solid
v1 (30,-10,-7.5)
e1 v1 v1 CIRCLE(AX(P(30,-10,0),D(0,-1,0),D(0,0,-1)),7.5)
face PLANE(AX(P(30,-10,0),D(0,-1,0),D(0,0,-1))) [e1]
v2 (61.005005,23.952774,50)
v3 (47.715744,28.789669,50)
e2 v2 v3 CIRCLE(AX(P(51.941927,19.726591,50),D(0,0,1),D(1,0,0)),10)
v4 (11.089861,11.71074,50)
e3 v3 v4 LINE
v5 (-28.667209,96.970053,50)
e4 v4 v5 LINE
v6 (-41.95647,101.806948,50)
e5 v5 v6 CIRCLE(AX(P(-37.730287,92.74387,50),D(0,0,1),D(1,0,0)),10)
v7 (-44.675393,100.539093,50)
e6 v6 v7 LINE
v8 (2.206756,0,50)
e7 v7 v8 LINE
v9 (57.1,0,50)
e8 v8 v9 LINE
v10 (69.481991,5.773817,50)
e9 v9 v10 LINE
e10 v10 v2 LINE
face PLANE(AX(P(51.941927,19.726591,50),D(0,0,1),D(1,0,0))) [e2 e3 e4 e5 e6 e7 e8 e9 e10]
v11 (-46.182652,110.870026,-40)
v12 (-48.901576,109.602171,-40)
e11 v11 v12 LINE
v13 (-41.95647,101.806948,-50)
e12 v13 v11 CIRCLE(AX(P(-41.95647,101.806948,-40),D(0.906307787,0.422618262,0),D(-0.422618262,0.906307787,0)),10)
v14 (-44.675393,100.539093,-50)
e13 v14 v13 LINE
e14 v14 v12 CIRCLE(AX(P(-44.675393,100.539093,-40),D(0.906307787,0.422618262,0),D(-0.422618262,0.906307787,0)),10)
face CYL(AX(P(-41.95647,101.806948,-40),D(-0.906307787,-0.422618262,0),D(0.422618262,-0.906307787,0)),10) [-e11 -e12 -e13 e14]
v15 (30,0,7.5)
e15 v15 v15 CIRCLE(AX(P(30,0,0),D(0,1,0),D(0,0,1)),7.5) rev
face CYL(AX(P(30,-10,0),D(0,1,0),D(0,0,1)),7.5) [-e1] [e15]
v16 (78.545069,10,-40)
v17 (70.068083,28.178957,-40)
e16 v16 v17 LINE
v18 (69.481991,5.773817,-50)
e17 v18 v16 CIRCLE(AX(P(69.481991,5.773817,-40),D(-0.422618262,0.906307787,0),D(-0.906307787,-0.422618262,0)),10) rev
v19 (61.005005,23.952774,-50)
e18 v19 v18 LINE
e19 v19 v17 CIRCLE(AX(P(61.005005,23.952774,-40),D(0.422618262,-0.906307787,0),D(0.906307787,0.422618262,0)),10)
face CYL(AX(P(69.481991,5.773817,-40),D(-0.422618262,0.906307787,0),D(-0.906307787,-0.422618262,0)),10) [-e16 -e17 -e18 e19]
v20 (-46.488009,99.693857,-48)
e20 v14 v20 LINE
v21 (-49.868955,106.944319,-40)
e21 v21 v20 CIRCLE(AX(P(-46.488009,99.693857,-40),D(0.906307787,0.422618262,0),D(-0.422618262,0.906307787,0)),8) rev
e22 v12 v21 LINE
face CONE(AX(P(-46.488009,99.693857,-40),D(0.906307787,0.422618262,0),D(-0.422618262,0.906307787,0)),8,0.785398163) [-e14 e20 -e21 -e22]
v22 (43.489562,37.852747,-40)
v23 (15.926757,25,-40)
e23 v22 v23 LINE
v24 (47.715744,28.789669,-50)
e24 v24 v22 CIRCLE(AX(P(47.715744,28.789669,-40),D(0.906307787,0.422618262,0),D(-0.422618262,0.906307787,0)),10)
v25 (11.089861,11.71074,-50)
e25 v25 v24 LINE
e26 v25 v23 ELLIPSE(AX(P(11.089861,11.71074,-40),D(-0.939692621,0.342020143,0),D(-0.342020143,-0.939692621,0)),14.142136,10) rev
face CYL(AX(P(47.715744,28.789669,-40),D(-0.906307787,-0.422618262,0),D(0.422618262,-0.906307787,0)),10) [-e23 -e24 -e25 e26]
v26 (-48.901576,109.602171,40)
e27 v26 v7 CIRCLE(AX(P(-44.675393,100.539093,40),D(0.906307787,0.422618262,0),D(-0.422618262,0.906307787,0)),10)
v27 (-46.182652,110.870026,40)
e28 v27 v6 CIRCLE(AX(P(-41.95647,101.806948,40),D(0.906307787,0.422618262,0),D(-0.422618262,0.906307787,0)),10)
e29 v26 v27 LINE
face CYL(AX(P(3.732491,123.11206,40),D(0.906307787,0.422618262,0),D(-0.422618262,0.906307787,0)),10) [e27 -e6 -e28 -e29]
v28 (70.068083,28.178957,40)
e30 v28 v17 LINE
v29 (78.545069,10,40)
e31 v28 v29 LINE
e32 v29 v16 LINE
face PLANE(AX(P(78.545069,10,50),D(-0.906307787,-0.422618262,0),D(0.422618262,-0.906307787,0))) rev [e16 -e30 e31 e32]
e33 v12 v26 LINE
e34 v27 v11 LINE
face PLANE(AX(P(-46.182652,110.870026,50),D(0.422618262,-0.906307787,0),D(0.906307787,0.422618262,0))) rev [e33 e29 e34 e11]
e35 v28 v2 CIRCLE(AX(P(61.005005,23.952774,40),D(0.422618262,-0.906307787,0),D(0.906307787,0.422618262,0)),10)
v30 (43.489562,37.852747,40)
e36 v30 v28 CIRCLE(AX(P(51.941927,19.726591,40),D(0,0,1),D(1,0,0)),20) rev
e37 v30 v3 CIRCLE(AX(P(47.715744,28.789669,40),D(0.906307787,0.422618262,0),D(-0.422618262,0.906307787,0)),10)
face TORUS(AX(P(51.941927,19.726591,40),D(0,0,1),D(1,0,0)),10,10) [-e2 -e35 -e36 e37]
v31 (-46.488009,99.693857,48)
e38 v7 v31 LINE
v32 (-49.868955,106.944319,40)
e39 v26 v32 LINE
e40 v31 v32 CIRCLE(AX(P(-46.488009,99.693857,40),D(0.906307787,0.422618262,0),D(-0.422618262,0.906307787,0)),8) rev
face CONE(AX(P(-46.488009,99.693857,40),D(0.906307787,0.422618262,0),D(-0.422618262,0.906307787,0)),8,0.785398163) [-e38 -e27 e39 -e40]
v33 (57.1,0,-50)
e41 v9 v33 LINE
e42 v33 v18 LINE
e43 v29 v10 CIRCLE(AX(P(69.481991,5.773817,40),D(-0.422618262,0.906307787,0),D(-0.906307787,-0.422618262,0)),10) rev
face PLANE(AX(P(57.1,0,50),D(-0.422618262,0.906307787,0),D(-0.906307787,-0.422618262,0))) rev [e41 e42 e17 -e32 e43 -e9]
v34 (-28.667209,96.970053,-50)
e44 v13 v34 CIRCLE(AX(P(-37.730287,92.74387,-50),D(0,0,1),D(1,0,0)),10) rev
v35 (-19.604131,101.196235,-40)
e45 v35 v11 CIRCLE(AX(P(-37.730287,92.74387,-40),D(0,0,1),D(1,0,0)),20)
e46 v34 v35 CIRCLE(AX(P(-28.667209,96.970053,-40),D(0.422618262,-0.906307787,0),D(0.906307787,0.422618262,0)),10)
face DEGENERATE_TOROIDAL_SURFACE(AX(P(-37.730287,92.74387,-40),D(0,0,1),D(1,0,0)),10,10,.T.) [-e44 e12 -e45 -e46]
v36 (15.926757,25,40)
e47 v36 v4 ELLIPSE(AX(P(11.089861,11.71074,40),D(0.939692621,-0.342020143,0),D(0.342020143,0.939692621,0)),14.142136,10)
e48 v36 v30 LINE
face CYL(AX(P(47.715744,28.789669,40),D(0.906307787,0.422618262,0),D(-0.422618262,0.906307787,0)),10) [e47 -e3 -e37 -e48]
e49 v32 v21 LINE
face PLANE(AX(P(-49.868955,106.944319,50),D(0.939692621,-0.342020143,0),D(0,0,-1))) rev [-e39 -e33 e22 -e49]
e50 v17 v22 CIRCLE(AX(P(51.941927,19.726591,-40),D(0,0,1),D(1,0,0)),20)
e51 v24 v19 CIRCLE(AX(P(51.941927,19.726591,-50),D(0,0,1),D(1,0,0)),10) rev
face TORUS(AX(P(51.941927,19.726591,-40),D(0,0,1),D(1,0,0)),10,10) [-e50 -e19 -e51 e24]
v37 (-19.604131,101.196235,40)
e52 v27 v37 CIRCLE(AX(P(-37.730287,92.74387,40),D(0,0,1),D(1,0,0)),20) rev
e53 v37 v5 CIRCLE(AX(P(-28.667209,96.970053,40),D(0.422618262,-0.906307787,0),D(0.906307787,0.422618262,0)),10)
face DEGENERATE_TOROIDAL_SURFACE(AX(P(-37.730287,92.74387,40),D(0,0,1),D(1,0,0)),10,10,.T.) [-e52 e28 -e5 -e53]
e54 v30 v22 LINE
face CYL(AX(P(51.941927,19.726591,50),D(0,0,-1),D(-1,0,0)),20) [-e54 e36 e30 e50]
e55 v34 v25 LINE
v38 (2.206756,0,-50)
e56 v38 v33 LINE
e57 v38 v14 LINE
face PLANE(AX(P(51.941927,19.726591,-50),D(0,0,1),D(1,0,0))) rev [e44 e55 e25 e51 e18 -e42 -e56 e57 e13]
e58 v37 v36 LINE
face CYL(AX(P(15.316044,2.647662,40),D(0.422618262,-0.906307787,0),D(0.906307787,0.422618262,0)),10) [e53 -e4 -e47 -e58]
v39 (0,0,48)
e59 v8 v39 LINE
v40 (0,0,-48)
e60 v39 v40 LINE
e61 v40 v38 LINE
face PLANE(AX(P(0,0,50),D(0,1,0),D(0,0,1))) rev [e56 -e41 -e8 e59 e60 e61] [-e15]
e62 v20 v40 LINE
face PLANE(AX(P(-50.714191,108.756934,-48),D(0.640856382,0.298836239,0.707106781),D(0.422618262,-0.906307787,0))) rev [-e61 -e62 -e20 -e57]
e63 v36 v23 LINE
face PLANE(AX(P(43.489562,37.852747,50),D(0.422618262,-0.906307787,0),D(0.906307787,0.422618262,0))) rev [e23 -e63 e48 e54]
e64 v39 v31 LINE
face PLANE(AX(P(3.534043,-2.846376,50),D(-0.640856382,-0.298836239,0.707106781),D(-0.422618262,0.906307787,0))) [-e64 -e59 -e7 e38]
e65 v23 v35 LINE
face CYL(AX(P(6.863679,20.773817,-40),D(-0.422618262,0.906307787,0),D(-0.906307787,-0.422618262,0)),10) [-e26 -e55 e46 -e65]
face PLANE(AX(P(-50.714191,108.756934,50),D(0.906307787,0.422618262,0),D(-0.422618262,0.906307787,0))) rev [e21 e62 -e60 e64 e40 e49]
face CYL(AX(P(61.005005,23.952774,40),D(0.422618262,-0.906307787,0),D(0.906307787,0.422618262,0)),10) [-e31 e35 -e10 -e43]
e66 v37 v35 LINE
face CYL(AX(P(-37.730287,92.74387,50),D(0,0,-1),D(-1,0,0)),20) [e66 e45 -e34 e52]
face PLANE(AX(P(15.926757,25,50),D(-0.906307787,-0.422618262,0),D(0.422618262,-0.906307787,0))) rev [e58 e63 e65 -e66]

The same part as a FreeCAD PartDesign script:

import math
import FreeCAD as App
import Part
import Sketcher

V = App.Vector
Q = App.Units.Quantity


def edges_at(feature, points):
    """Names of the edges that pass closest to the given points."""
    edges = feature.Shape.Edges
    near = lambda p: min(range(len(edges)), key=lambda i: edges[i].distToShape(Part.Vertex(*p))[0])
    return sorted({f"Edge{near(p) + 1}" for p in points})

doc = App.newDocument("Part")
body = doc.addObject("PartDesign::Body", "Body")

# Sketch on XY plane
sketch1 = body.newObject("Sketcher::SketchObject", "Sketch")
sketch1.AttachmentSupport = (doc.getObject("XY_Plane"), [""])
sketch1.MapMode = "FlatFace"
sketch1.addGeometry([
    Part.LineSegment(V(-50.714191, 108.756934, 0), V(0, 0, 0)),  # 0
    Part.LineSegment(V(0, 0, 0), V(57.1, 0, 0)),  # 1
    Part.LineSegment(V(57.1, 0, 0), V(78.545069, 10, 0)),  # 2
    Part.LineSegment(V(78.545069, 10, 0), V(70.068083, 28.178957, 0)),  # 3
    Part.ArcOfCircle(Part.Circle(V(51.941927, 19.726591, 0), V(0, 0, 1), 20), math.radians(25), math.radians(115)),  # 4
    Part.LineSegment(V(43.489562, 37.852747, 0), V(15.926757, 25, 0)),  # 5
    Part.LineSegment(V(15.926757, 25, 0), V(-19.604131, 101.196235, 0)),  # 6
    Part.ArcOfCircle(Part.Circle(V(-37.730287, 92.74387, 0), V(0, 0, 1), 20), math.radians(25), math.radians(115)),  # 7
    Part.LineSegment(V(-46.182652, 110.870026, 0), V(-50.714191, 108.756934, 0)),  # 8
], False)
sketch1.addConstraint([
    Sketcher.Constraint("Coincident", 0, 2, 1, 1),
    Sketcher.Constraint("Coincident", 1, 2, 2, 1),
    Sketcher.Constraint("Coincident", 2, 2, 3, 1),
    Sketcher.Constraint("Tangent", 3, 2, 4, 1),
    Sketcher.Constraint("Tangent", 4, 2, 5, 1),
    Sketcher.Constraint("Coincident", 5, 2, 6, 1),
    Sketcher.Constraint("Tangent", 6, 2, 7, 1),
    Sketcher.Constraint("Tangent", 7, 2, 8, 1),
    Sketcher.Constraint("Coincident", 8, 2, 0, 1),
    Sketcher.Constraint("Horizontal", 1),
    Sketcher.Constraint("Coincident", 0, 2, -1, 1),
    Sketcher.Constraint("Equal", 4, 7),
    Sketcher.Constraint("Perpendicular", 0, 2),
    Sketcher.Constraint("Perpendicular", 2, 3),
    Sketcher.Constraint("Perpendicular", 3, 5),
    Sketcher.Constraint("Perpendicular", 5, 6),
    Sketcher.Constraint("Perpendicular", 6, 8),
    Sketcher.Constraint("Radius", 4, Q("20 mm")),
    Sketcher.Constraint("Angle", 0, Q("-65 deg")),
    Sketcher.Constraint("Distance", 0, Q("120 mm")),
    Sketcher.Constraint("Distance", 8, Q("5 mm")),
    Sketcher.Constraint("DistanceX", 1, 1, 1, 2, Q("57.1 mm")),
    Sketcher.Constraint("DistanceY", -1, 1, 2, 2, Q("10 mm")),
    Sketcher.Constraint("DistanceY", -1, 1, 5, 2, Q("25 mm")),
])
pad1 = body.newObject("PartDesign::Pad", "Pad")
pad1.Profile = sketch1
pad1.Length = 100
pad1.Midplane = True

# Sketch on XZ plane
sketch2 = body.newObject("Sketcher::SketchObject", "Sketch001")
sketch2.AttachmentSupport = (doc.getObject("XZ_Plane"), [""])
sketch2.MapMode = "FlatFace"
sketch2.addGeometry(Part.Circle(V(30, 0, 0), V(0, 0, 1), 7.5), False)
sketch2.addConstraint([
    Sketcher.Constraint("PointOnObject", 0, 3, -1),
    Sketcher.Constraint("Diameter", 0, Q("15 mm")),
    Sketcher.Constraint("DistanceX", -1, 1, 0, 3, Q("30 mm")),
])
pad2 = body.newObject("PartDesign::Pad", "Pad001")
pad2.Profile = sketch2
pad2.Length = 10
doc.recompute()

fillet = body.newObject("PartDesign::Fillet", "Fillet")
fillet.Base = (pad2, edges_at(pad2, [
    (29.708, 31.426, -50),
    (58.782, 38.52, -50),
    (74.307, 19.089, -50),
    (-48.448, 109.813, -50),
    (74.307, 19.089, 50),
    (58.782, 38.52, 50),
    (29.708, 31.426, 50),
    (-1.839, 63.098, 50),
    (-30.89, 111.538, 50),
    (-48.448, 109.813, 50),
    (-30.89, 111.538, -50),
    (-1.839, 63.098, -50),
]))
fillet.Radius = 10
doc.recompute()

chamfer = body.newObject("PartDesign::Chamfer", "Chamfer")
chamfer.Base = (fillet, edges_at(fillet, [
    (-23.244, 49.847, -50),
    (-23.244, 49.847, 50),
    (-50.714, 108.757, 0),
    (-49.476, 106.102, 47.071),
    (-49.476, 106.102, -47.071),
]))
chamfer.Size = 2

doc.recompute()
